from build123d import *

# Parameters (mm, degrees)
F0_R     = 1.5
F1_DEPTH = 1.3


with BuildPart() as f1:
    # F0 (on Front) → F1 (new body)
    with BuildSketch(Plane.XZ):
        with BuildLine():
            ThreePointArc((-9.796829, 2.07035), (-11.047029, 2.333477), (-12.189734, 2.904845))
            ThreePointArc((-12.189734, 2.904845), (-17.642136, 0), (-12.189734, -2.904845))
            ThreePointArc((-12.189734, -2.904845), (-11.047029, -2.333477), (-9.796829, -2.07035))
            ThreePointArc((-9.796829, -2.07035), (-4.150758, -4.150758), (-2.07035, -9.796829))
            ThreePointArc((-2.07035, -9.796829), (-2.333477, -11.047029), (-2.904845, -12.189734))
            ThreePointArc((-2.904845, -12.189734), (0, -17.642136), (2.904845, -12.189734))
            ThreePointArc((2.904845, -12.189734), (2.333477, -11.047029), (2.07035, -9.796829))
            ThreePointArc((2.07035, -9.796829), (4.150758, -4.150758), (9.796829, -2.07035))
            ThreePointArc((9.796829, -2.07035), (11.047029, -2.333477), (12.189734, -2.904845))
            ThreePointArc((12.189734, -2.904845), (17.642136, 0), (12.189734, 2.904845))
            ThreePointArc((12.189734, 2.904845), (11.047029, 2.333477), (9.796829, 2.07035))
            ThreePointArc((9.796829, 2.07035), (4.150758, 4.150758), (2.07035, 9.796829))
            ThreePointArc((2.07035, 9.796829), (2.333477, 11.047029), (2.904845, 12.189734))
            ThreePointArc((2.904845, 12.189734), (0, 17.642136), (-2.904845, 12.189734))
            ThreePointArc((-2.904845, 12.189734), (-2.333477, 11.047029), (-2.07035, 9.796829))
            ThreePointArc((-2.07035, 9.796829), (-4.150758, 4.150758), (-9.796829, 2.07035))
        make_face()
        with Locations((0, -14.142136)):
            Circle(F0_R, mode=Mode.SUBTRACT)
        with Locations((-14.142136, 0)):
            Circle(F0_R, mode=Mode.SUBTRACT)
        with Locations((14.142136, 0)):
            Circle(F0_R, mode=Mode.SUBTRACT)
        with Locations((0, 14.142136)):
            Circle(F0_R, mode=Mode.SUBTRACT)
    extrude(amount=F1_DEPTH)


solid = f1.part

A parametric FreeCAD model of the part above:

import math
import FreeCAD as App
import Part
import Sketcher
Q = App.Units.Quantity

doc = App.newDocument("Part")
params = doc.addObject("Spreadsheet::Sheet", "Params")
for row, (alias, value) in enumerate([
    ("sketch1_diameter", "3 mm"),
    ("sketch1_radius", "5.000002 mm"),
    ("sketch1_radius2", "3.5 mm"),
    ("pad1_length", "1.3 mm"),
], start=1):
    params.set(f"A{row}", alias)
    params.set(f"B{row}", "=" + value)
    params.setAlias(f"B{row}", alias)

body = doc.addObject("PartDesign::Body", "Body")

sketch1 = doc.addObject("Sketcher::SketchObject", "Sketch")
body.addObject(sketch1)
sketch1.AttachmentSupport = (doc.XZ_Plane, [""])
sketch1.MapMode = "FlatFace"
sketch1.addGeometry(Part.ArcOfCircle(Part.Circle(App.Vector(-9.400589, 7.054627, 0), App.Vector(0, 0, 1), 5.000002), math.radians(-123.905782), math.radians(-94.545346)), False)
sketch1.addGeometry(Part.ArcOfCircle(Part.Circle(App.Vector(-14.142136, 0, 0), App.Vector(0, 0, 1), 3.5), math.radians(56.094193), math.radians(303.905807)), False)
sketch1.addGeometry(Part.ArcOfCircle(Part.Circle(App.Vector(-9.400589, -7.054627, 0), App.Vector(0, 0, 1), 5.000002), math.radians(94.545346), math.radians(123.905782)), False)
sketch1.addGeometry(Part.ArcOfCircle(Part.Circle(App.Vector(-9.227824, -9.227824, 0), App.Vector(0, 0, 1), 7.180056), math.radians(-4.545339), math.radians(94.545339)), False)
sketch1.addGeometry(Part.ArcOfCircle(Part.Circle(App.Vector(-7.054627, -9.400589, 0), App.Vector(0, 0, 1), 5.000002), math.radians(-33.905782), math.radians(-4.545346)), False)
sketch1.addGeometry(Part.ArcOfCircle(Part.Circle(App.Vector(0, -14.142136, 0), App.Vector(0, 0, 1), 3.5), math.radians(146.094193), math.radians(393.905807)), False)
sketch1.addGeometry(Part.ArcOfCircle(Part.Circle(App.Vector(7.054627, -9.400589, 0), App.Vector(0, 0, 1), 5.000002), math.radians(-175.454654), math.radians(-146.094218)), False)
sketch1.addGeometry(Part.ArcOfCircle(Part.Circle(App.Vector(9.227824, -9.227824, 0), App.Vector(0, 0, 1), 7.180056), math.radians(85.454661), math.radians(184.545339)), False)
sketch1.addGeometry(Part.ArcOfCircle(Part.Circle(App.Vector(9.400589, -7.054627, 0), App.Vector(0, 0, 1), 5.000002), math.radians(56.094218), math.radians(85.454654)), False)
sketch1.addGeometry(Part.ArcOfCircle(Part.Circle(App.Vector(14.142136, 0, 0), App.Vector(0, 0, 1), 3.5), math.radians(-123.905807), math.radians(123.905807)), False)
sketch1.addGeometry(Part.ArcOfCircle(Part.Circle(App.Vector(9.400589, 7.054627, 0), App.Vector(0, 0, 1), 5.000002), math.radians(-85.454654), math.radians(-56.094218)), False)
sketch1.addGeometry(Part.ArcOfCircle(Part.Circle(App.Vector(9.227824, 9.227824, 0), App.Vector(0, 0, 1), 7.180056), math.radians(175.454661), math.radians(274.545339)), False)
sketch1.addGeometry(Part.ArcOfCircle(Part.Circle(App.Vector(7.054627, 9.400589, 0), App.Vector(0, 0, 1), 5.000002), math.radians(146.094218), math.radians(175.454654)), False)
sketch1.addGeometry(Part.ArcOfCircle(Part.Circle(App.Vector(0, 14.142136, 0), App.Vector(0, 0, 1), 3.5), math.radians(-33.905807), math.radians(213.905807)), False)
sketch1.addGeometry(Part.ArcOfCircle(Part.Circle(App.Vector(-7.054627, 9.400589, 0), App.Vector(0, 0, 1), 5.000002), math.radians(4.545346), math.radians(33.905782)), False)
sketch1.addGeometry(Part.ArcOfCircle(Part.Circle(App.Vector(-9.227824, 9.227824, 0), App.Vector(0, 0, 1), 7.180056), math.radians(-94.545339), math.radians(4.545339)), False)
sketch1.addGeometry(Part.Circle(App.Vector(0, -14.142136, 0), App.Vector(0, 0, 1), 1.5), False)
sketch1.addGeometry(Part.Circle(App.Vector(-14.142136, 0, 0), App.Vector(0, 0, 1), 1.5), False)
sketch1.addGeometry(Part.Circle(App.Vector(14.142136, 0, 0), App.Vector(0, 0, 1), 1.5), False)
sketch1.addGeometry(Part.Circle(App.Vector(0, 14.142136, 0), App.Vector(0, 0, 1), 1.5), False)
sketch1.addConstraint(Sketcher.Constraint("Tangent", 0, 1, 1, 1))
sketch1.addConstraint(Sketcher.Constraint("Tangent", 1, 2, 2, 2))
sketch1.addConstraint(Sketcher.Constraint("Tangent", 2, 1, 3, 2))
sketch1.addConstraint(Sketcher.Constraint("Tangent", 3, 1, 4, 2))
sketch1.addConstraint(Sketcher.Constraint("Tangent", 4, 1, 5, 1))
sketch1.addConstraint(Sketcher.Constraint("Tangent", 5, 2, 6, 2))
sketch1.addConstraint(Sketcher.Constraint("Tangent", 6, 1, 7, 2))
sketch1.addConstraint(Sketcher.Constraint("Tangent", 7, 1, 8, 2))
sketch1.addConstraint(Sketcher.Constraint("Tangent", 8, 1, 9, 1))
sketch1.addConstraint(Sketcher.Constraint("Tangent", 9, 2, 10, 2))
sketch1.addConstraint(Sketcher.Constraint("Tangent", 10, 1, 11, 2))
sketch1.addConstraint(Sketcher.Constraint("Tangent", 11, 1, 12, 2))
sketch1.addConstraint(Sketcher.Constraint("Tangent", 12, 1, 13, 1))
sketch1.addConstraint(Sketcher.Constraint("Tangent", 13, 2, 14, 2))
sketch1.addConstraint(Sketcher.Constraint("Tangent", 14, 1, 15, 2))
sketch1.addConstraint(Sketcher.Constraint("Tangent", 15, 1, 0, 2))
sketch1.addConstraint(Sketcher.Constraint("Coincident", 16, 3, 5, 3))
sketch1.addConstraint(Sketcher.Constraint("Coincident", 17, 3, 1, 3))
sketch1.addConstraint(Sketcher.Constraint("Coincident", 18, 3, 9, 3))
sketch1.addConstraint(Sketcher.Constraint("Coincident", 19, 3, 13, 3))
sketch1.addConstraint(Sketcher.Constraint("Equal", 0, 2))
sketch1.addConstraint(Sketcher.Constraint("Equal", 2, 4))
sketch1.addConstraint(Sketcher.Constraint("Equal", 1, 5))
sketch1.addConstraint(Sketcher.Constraint("Equal", 4, 6))
sketch1.addConstraint(Sketcher.Constraint("Equal", 3, 7))
sketch1.addConstraint(Sketcher.Constraint("Equal", 6, 8))
sketch1.addConstraint(Sketcher.Constraint("Equal", 5, 9))
sketch1.addConstraint(Sketcher.Constraint("Equal", 8, 10))
sketch1.addConstraint(Sketcher.Constraint("Equal", 7, 11))
sketch1.addConstraint(Sketcher.Constraint("Equal", 10, 12))
sketch1.addConstraint(Sketcher.Constraint("Equal", 9, 13))
sketch1.addConstraint(Sketcher.Constraint("Equal", 12, 14))
sketch1.addConstraint(Sketcher.Constraint("Equal", 11, 15))
sketch1.addConstraint(Sketcher.Constraint("Equal", 16, 17))
sketch1.addConstraint(Sketcher.Constraint("Equal", 17, 18))
sketch1.addConstraint(Sketcher.Constraint("Equal", 18, 19))
sketch1.addConstraint(Sketcher.Constraint("Symmetric", 0, 3, 8, 3, -1, 1))
sketch1.addConstraint(Sketcher.Constraint("Symmetric", 2, 3, 10, 3, -1, 1))
sketch1.addConstraint(Sketcher.Constraint("Symmetric", 4, 3, 12, 3, -1, 1))
sketch1.addConstraint(Sketcher.Constraint("Symmetric", 6, 3, 14, 3, -1, 1))
sketch1.addConstraint(Sketcher.Constraint("Symmetric", 4, 3, 6, 3, -2))
sketch1.addConstraint(Sketcher.Constraint("Symmetric", 2, 3, 8, 3, -2))
sketch1.addConstraint(Sketcher.Constraint("Diameter", 16, Q("3 mm")))
sketch1.addConstraint(Sketcher.Constraint("Radius", 0, Q("5.000002 mm")))
sketch1.addConstraint(Sketcher.Constraint("Radius", 1, Q("3.5 mm")))
sketch1.addConstraint(Sketcher.Constraint("Radius", 3, Q("7.180056 mm")))
sketch1.addConstraint(Sketcher.Constraint("DistanceX", 3, 1, 6, 1, Q("4.1407 mm")))
sketch1.addConstraint(Sketcher.Constraint("DistanceY", 7, 1, 10, 1, Q("4.1407 mm")))
sketch1.addConstraint(Sketcher.Constraint("DistanceX", 0, 3, -1, 1, Q("9.400589 mm")))
sketch1.addConstraint(Sketcher.Constraint("DistanceY", 4, 3, -1, 1, Q("9.400589 mm")))
sketch1.setExpression("Constraints[42]", "Params.sketch1_diameter")
sketch1.setExpression("Constraints[43]", "Params.sketch1_radius")
sketch1.setExpression("Constraints[44]", "Params.sketch1_radius2")
pad1 = doc.addObject("PartDesign::Pad", "Pad")
body.addObject(pad1)
pad1.Profile = sketch1
pad1.setExpression("Length", "Params.pad1_length")

doc.recompute()
